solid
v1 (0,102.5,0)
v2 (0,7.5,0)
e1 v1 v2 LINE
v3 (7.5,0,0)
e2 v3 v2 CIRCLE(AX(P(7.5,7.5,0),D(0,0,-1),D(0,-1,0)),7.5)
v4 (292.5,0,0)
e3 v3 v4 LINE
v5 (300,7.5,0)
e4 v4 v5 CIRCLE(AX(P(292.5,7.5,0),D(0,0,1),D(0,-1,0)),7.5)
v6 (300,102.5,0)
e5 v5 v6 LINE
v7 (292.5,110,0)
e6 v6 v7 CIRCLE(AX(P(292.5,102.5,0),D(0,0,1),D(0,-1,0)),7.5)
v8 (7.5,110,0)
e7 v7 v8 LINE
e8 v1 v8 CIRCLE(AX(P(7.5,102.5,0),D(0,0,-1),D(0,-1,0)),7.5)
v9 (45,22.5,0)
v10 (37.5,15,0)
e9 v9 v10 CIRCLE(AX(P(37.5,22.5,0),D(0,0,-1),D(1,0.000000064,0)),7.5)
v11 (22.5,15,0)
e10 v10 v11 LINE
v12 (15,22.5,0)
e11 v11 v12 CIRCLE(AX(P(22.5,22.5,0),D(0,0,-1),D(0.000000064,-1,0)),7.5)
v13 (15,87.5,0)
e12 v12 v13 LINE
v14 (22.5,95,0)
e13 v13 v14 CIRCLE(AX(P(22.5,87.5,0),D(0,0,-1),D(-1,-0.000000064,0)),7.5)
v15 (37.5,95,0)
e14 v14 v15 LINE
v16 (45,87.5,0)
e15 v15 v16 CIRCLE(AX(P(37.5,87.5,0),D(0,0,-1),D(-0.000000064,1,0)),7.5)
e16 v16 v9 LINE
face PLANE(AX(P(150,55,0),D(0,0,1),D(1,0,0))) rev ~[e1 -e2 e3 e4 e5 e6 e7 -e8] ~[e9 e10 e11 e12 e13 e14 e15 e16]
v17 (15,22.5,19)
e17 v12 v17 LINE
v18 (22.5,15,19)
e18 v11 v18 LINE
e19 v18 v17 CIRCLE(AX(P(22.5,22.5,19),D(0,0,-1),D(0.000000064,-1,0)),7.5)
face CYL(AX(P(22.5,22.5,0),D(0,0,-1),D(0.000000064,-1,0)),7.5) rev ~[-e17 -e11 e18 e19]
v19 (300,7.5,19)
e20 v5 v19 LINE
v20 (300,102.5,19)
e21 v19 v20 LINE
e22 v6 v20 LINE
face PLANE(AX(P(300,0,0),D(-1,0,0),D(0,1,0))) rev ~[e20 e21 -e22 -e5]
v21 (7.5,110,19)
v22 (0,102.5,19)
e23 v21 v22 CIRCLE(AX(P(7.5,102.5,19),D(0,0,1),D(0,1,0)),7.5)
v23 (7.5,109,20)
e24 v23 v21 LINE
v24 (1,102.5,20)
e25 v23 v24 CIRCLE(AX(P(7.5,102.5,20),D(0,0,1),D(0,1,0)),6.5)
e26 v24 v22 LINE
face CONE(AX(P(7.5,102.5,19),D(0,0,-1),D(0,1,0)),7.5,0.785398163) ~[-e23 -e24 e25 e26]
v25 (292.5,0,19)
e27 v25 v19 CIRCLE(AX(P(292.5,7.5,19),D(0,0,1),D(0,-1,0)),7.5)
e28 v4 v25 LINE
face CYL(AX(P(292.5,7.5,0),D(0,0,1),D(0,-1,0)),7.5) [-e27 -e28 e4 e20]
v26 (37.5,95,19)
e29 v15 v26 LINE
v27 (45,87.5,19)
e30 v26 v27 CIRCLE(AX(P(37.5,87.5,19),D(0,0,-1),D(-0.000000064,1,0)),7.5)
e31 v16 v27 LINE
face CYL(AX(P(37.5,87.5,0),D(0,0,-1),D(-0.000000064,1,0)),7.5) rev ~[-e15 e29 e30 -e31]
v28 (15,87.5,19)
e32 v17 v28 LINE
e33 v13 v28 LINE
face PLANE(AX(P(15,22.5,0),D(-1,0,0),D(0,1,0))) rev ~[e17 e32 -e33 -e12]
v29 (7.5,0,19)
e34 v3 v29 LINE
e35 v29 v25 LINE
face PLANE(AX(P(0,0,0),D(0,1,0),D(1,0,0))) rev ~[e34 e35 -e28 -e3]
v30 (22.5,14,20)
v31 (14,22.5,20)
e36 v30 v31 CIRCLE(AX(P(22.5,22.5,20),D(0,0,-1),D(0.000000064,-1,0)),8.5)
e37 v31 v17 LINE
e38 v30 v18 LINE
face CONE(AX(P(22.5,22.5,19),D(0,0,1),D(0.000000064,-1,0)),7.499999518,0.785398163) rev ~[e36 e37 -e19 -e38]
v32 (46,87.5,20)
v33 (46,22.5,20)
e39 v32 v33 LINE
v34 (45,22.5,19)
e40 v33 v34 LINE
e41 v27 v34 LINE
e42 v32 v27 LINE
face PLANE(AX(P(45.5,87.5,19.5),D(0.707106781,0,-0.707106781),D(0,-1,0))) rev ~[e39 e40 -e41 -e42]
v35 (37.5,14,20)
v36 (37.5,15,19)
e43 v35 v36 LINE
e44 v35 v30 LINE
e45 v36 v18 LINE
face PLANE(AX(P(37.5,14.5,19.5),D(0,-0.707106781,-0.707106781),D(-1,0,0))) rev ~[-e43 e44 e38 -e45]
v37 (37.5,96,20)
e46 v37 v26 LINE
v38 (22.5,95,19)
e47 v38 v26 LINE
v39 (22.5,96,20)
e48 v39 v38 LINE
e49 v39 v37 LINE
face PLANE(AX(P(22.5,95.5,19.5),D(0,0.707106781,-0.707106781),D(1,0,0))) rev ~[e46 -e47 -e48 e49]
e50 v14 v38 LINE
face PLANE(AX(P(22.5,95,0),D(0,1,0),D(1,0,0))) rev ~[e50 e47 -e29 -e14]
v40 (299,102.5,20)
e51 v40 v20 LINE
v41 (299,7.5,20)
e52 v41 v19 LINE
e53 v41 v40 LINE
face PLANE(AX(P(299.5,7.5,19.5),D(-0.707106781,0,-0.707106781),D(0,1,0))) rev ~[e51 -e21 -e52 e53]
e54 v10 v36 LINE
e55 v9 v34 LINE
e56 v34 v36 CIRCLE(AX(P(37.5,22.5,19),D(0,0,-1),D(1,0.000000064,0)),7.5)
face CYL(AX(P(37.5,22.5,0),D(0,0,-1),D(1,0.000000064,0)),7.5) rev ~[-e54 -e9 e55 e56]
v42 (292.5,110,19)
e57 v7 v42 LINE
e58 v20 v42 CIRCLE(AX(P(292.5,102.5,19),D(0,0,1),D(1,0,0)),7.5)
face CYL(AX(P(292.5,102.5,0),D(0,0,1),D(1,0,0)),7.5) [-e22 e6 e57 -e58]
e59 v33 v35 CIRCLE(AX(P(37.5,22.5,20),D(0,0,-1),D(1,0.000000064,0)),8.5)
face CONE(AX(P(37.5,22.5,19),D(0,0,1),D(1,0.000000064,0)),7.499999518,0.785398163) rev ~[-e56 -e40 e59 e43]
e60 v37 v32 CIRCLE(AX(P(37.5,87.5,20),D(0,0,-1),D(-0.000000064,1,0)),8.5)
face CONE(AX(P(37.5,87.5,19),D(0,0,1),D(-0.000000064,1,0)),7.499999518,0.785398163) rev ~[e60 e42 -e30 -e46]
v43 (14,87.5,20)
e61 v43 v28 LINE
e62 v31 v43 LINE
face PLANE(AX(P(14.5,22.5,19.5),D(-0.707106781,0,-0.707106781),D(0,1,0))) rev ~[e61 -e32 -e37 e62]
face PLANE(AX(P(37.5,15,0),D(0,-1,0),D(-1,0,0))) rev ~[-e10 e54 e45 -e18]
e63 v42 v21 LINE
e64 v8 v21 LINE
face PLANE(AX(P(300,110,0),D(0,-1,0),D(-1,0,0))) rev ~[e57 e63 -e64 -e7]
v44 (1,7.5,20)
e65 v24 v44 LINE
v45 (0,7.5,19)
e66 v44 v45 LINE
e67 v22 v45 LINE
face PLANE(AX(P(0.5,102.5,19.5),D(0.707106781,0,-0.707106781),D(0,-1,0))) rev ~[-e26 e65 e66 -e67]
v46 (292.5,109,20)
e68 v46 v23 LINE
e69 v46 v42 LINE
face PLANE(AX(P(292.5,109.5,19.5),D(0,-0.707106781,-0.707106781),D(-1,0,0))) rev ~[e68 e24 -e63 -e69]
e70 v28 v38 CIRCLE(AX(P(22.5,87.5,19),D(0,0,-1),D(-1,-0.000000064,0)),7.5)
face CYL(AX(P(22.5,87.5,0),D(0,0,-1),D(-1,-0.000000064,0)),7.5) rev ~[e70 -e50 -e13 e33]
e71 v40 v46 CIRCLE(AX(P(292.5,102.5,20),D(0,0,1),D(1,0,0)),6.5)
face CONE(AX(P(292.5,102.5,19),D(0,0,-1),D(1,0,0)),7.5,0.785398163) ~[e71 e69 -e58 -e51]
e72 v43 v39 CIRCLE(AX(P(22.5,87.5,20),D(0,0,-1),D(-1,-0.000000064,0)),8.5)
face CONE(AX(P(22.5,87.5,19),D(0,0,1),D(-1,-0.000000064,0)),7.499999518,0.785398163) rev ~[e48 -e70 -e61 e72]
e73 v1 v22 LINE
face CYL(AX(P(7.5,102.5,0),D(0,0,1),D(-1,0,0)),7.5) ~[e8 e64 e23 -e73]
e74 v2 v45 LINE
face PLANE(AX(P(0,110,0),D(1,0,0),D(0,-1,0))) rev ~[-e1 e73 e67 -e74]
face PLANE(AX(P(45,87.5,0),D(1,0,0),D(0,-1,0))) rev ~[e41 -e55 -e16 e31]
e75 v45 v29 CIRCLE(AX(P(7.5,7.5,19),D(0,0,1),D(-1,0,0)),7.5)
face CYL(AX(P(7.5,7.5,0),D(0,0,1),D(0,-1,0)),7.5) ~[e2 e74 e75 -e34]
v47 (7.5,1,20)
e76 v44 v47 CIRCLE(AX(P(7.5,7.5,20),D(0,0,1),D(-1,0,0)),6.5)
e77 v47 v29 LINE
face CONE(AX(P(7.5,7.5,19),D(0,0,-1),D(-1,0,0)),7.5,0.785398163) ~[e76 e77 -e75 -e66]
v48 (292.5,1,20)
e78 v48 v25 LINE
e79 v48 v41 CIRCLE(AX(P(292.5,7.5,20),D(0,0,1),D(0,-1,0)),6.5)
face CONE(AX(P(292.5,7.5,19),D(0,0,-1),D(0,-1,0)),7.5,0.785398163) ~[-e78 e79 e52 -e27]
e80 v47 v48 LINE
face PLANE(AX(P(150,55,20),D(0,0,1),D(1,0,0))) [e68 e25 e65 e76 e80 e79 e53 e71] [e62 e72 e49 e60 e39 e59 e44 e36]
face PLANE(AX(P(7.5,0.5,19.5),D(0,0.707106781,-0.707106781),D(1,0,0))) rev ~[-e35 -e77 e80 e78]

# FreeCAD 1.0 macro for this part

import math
import FreeCAD as App
import Part
import Sketcher


def edges_at(feature, points):
    """Names of the edges that pass closest to the given points."""
    edges = feature.Shape.Edges
    near = lambda p: min(range(len(edges)), key=lambda i: edges[i].distToShape(Part.Vertex(*p))[0])
    return sorted({f"Edge{near(p) + 1}" for p in points})


def add_polygon(sketch, points):
    """Adds a closed chain of lines whose ends are joined by coincident constraints."""
    first, n = sketch.GeometryCount, len(points)
    for a, b in zip(points, points[1:] + points[:1]):
        sketch.addGeometry(Part.LineSegment(App.Vector(*a, 0), App.Vector(*b, 0)), False)
    for i in range(n):
        sketch.addConstraint(Sketcher.Constraint("Coincident", first + i, 2, first + (i + 1) % n, 1))

doc = App.newDocument("Part")
body = doc.addObject("PartDesign::Body", "Body")

sketch1 = body.newObject("Sketcher::SketchObject", "Sketch")
sketch1.AttachmentSupport = (doc.getObject("XY_Plane"), [""])
sketch1.MapMode = "FlatFace"
add_polygon(sketch1, [(0, 0), (300, 0), (300, 110), (0, 110)])
sketch1.addGeometry(Part.ArcOfCircle(Part.Circle(App.Vector(22, 22, 0), App.Vector(0, 0, 1), 7), math.radians(180), math.radians(270)), False)
sketch1.addGeometry(Part.LineSegment(App.Vector(15, 22, 0), App.Vector(15, 88, 0)), False)
sketch1.addGeometry(Part.ArcOfCircle(Part.Circle(App.Vector(22, 88, 0), App.Vector(0, 0, 1), 7), math.radians(90), math.radians(180)), False)
sketch1.addGeometry(Part.LineSegment(App.Vector(22, 95, 0), App.Vector(38, 95, 0)), False)
sketch1.addGeometry(Part.ArcOfCircle(Part.Circle(App.Vector(38, 88, 0), App.Vector(0, 0, 1), 7), math.radians(0), math.radians(90)), False)
sketch1.addGeometry(Part.LineSegment(App.Vector(45, 88, 0), App.Vector(45, 22, 0)), False)
sketch1.addGeometry(Part.ArcOfCircle(Part.Circle(App.Vector(38, 22, 0), App.Vector(0, 0, 1), 7), math.radians(-90), math.radians(0)), False)
sketch1.addGeometry(Part.LineSegment(App.Vector(38, 15, 0), App.Vector(22, 15, 0)), False)
sketch1.addConstraint(Sketcher.Constraint("Tangent", 4, 1, 5, 1))
sketch1.addConstraint(Sketcher.Constraint("Tangent", 5, 2, 6, 2))
sketch1.addConstraint(Sketcher.Constraint("Tangent", 6, 1, 7, 1))
sketch1.addConstraint(Sketcher.Constraint("Tangent", 7, 2, 8, 2))
sketch1.addConstraint(Sketcher.Constraint("Tangent", 8, 1, 9, 1))
sketch1.addConstraint(Sketcher.Constraint("Tangent", 9, 2, 10, 2))
sketch1.addConstraint(Sketcher.Constraint("Tangent", 10, 1, 11, 1))
sketch1.addConstraint(Sketcher.Constraint("Tangent", 11, 2, 4, 2))
sketch1.addConstraint(Sketcher.Constraint("Horizontal", 0))
sketch1.addConstraint(Sketcher.Constraint("Vertical", 1))
sketch1.addConstraint(Sketcher.Constraint("Horizontal", 2))
sketch1.addConstraint(Sketcher.Constraint("Vertical", 3))
sketch1.addConstraint(Sketcher.Constraint("Vertical", 5))
sketch1.addConstraint(Sketcher.Constraint("Horizontal", 7))
sketch1.addConstraint(Sketcher.Constraint("Vertical", 9))
sketch1.addConstraint(Sketcher.Constraint("Horizontal", 11))
sketch1.addConstraint(Sketcher.Constraint("Coincident", 3, 2, -1, 1))
sketch1.addConstraint(Sketcher.Constraint("Equal", 4, 6))
sketch1.addConstraint(Sketcher.Constraint("Equal", 6, 8))
sketch1.addConstraint(Sketcher.Constraint("Equal", 8, 10))
sketch1.addConstraint(Sketcher.Constraint("Radius", 4, 7.5))
sketch1.addConstraint(Sketcher.Constraint("DistanceX", 0, 1, 0, 2, 300.0))
sketch1.addConstraint(Sketcher.Constraint("DistanceX", 7, 1, 7, 2, 15.0))
sketch1.addConstraint(Sketcher.Constraint("DistanceY", 1, 1, 1, 2, 110.0))
sketch1.addConstraint(Sketcher.Constraint("DistanceY", 5, 1, 5, 2, 65.0))
sketch1.addConstraint(Sketcher.Constraint("DistanceX", -1, 1, 4, 1, 15.0))
sketch1.addConstraint(Sketcher.Constraint("DistanceY", -1, 1, 6, 1, 95.0))
pad1 = body.newObject("PartDesign::Pad", "Pad")
pad1.Profile = sketch1
pad1.Length = 20
doc.recompute()

fillet = body.newObject("PartDesign::Fillet", "Fillet")
fillet.Base = (pad1, edges_at(pad1, [
    (300, 0, 10),
    (300, 110, 10),
    (0, 0, 10),
    (0, 110, 10),
]))
fillet.Radius = 7.5
doc.recompute()

chamfer = body.newObject("PartDesign::Chamfer", "Chamfer")
chamfer.Base = (fillet, edges_at(fillet, [
    (0, 55, 20),
    (2.197, 2.197, 20),
    (2.197, 107.803, 20),
    (150, 0, 20),
    (150, 110, 20),
    (297.803, 2.197, 20),
    (297.803, 107.803, 20),
    (300, 55, 20),
    (15, 55, 20),
    (17.197, 92.803, 20),
    (30, 95, 20),
    (42.803, 92.803, 20),
    (45, 55, 20),
    (42.803, 17.197, 20),
    (30, 15, 20),
    (17.197, 17.197, 20),
]))
chamfer.Size = 1

doc.recompute()
